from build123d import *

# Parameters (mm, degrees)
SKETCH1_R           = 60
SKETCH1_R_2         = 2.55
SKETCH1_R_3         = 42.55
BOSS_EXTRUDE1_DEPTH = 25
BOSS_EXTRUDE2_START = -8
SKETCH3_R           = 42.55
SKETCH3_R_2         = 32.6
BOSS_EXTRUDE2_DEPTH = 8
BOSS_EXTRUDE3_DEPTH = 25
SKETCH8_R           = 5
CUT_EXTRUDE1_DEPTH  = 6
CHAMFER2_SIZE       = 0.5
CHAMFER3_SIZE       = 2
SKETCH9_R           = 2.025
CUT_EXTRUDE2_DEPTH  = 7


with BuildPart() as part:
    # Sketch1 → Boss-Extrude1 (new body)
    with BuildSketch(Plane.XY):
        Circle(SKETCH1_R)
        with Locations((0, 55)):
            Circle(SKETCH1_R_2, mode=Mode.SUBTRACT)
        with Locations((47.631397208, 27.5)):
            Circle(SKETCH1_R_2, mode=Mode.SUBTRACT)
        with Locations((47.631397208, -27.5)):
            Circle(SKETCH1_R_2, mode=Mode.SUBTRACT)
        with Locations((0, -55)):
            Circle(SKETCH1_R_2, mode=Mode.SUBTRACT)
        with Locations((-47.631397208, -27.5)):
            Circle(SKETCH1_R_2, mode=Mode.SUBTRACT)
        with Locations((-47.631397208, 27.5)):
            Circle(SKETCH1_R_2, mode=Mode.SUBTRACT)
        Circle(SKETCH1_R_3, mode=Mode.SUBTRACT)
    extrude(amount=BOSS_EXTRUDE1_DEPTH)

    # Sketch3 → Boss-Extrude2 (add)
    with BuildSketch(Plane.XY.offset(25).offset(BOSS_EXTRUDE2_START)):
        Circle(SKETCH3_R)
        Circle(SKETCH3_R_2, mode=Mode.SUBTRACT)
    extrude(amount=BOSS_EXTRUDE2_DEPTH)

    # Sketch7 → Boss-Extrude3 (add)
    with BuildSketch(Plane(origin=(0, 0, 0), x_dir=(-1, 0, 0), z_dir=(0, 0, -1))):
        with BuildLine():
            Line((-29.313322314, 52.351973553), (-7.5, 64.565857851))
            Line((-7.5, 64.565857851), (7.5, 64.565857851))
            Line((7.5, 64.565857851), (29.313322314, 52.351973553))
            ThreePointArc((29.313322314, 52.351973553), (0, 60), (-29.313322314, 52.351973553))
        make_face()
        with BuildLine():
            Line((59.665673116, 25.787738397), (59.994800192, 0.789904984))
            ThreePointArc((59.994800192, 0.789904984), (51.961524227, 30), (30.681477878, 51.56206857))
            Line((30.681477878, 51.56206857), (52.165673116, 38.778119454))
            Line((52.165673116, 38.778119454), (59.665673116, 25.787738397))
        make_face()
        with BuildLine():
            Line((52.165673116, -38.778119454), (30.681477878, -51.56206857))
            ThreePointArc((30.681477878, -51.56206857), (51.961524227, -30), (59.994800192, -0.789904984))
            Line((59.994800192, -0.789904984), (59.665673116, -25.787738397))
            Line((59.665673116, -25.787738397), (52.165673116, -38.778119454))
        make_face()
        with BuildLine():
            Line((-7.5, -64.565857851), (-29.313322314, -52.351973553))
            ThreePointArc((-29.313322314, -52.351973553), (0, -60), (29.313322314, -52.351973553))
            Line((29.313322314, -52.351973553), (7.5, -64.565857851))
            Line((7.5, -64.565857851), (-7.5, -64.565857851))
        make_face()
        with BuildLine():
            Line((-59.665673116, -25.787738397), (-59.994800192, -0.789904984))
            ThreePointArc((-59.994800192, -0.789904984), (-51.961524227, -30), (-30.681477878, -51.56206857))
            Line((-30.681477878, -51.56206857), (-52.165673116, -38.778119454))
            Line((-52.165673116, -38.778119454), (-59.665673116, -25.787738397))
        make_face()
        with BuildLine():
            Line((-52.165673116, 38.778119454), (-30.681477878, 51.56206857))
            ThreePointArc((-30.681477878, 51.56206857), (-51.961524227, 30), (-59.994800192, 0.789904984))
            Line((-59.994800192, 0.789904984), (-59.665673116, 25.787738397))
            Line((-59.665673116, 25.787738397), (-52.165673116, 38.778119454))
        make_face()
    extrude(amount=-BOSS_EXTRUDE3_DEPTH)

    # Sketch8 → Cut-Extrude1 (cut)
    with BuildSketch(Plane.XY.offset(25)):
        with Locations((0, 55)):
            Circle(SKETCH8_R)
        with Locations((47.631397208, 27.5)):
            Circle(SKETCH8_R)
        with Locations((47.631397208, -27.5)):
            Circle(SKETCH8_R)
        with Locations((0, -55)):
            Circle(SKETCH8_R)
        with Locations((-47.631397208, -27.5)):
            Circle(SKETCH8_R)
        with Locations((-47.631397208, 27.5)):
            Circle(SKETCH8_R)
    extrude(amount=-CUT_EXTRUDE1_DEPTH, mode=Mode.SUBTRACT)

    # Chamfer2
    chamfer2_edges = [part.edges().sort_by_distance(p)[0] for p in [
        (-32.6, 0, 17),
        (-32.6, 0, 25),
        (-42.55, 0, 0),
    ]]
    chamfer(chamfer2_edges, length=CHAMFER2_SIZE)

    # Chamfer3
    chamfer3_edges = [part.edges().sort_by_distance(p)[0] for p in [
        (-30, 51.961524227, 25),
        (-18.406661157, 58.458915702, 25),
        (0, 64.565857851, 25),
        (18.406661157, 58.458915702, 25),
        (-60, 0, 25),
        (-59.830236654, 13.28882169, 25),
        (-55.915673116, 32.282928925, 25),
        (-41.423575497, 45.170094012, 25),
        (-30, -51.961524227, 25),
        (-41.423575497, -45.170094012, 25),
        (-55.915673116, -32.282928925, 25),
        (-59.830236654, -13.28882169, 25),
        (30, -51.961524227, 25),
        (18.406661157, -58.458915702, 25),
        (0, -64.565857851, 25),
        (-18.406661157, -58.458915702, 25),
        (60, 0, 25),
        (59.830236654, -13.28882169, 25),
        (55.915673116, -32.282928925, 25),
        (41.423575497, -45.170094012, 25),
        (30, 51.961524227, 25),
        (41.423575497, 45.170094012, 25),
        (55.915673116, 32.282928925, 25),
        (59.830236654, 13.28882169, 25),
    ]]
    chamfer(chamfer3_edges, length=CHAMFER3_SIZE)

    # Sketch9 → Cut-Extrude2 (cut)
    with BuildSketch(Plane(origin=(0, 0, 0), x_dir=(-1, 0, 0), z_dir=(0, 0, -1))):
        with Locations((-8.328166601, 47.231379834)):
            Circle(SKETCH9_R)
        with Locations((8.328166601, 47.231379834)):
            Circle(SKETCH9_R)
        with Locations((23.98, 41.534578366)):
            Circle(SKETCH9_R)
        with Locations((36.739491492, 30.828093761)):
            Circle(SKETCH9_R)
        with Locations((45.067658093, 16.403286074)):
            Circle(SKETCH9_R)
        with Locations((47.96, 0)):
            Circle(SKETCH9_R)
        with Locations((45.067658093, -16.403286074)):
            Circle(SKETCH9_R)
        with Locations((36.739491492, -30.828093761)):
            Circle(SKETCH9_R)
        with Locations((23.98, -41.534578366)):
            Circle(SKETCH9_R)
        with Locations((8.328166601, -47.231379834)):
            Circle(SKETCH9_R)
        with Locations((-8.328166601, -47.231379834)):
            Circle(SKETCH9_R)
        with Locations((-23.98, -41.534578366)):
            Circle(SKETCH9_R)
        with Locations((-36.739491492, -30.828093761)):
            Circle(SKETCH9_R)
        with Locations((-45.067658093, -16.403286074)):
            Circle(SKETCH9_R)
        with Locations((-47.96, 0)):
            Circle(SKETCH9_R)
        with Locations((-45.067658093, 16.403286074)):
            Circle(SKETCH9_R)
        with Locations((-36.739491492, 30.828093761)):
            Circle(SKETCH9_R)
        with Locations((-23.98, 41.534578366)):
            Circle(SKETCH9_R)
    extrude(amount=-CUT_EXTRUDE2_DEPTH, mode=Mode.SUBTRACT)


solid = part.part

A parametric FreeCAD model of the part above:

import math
import FreeCAD as App
import Part
import Sketcher
from FreeCAD import Vector
Q = App.Units.Quantity


def edges_at(feature, points):
    """Names of the edges that pass closest to the given points."""
    edges = feature.Shape.Edges
    near = lambda p: min(range(len(edges)), key=lambda i: edges[i].distToShape(Part.Vertex(*p))[0])
    return sorted({f"Edge{near(p) + 1}" for p in points})

doc = App.newDocument("Part")
params = doc.addObject("Spreadsheet::Sheet", "Params")
for row, (alias, value) in enumerate([
    ("sketch1_diameter", "120 mm"),
    ("sketch1_diameter2", "5.1 mm"),
    ("sketch1_diameter3", "85.1 mm"),
    ("pad1_length", "25 mm"),
    ("sketch2_diameter", "85.1 mm"),
    ("sketch2_diameter2", "65.2 mm"),
    ("pad2_length", "8 mm"),
    ("sketch3_radius", "60 mm"),
    ("sketch3_width", "15 mm"),
    ("sketch3_length", "25 mm"),
    ("sketch3_length2", "15 mm"),
    ("pad3_length", "25 mm"),
    ("sketch4_diameter", "10 mm"),
    ("pocket1_length", "6 mm"),
    ("chamfer_size", "0.5 mm"),
    ("chamfer2_size", "2 mm"),
    ("sketch5_diameter", "4.05 mm"),
    ("pocket2_length", "7 mm"),
], start=1):
    params.set(f"A{row}", alias)
    params.set(f"B{row}", "=" + value)
    params.setAlias(f"B{row}", alias)

body = doc.addObject("PartDesign::Body", "Body")

sketch1 = body.newObject("Sketcher::SketchObject", "Sketch")
sketch1.AttachmentSupport = (doc.getObject("XY_Plane"), [""])
sketch1.MapMode = "FlatFace"
sketch1.addGeometry([
    Part.Circle(Vector(0, 0, 0), Vector(0, 0, 1), 60),
    Part.Circle(Vector(0, -55, 0), Vector(0, 0, 1), 2.5),
    Part.Circle(Vector(-47.6, -27.5, 0), Vector(0, 0, 1), 2.5),
    Part.Circle(Vector(47.6, -27.5, 0), Vector(0, 0, 1), 2.5),
    Part.Circle(Vector(-47.6, 27.5, 0), Vector(0, 0, 1), 2.5),
    Part.Circle(Vector(0, 0, 0), Vector(0, 0, 1), 42.5),
    Part.Circle(Vector(0, 55, 0), Vector(0, 0, 1), 2.5),
    Part.Circle(Vector(47.6, 27.5, 0), Vector(0, 0, 1), 2.5),
], False)
sketch1.addConstraint([
    Sketcher.Constraint("Coincident", 0, 3, -1, 1),
    Sketcher.Constraint("Coincident", 5, 3, -1, 1),
    Sketcher.Constraint("Equal", 1, 2),
    Sketcher.Constraint("Equal", 2, 3),
    Sketcher.Constraint("Equal", 3, 4),
    Sketcher.Constraint("Equal", 4, 6),
    Sketcher.Constraint("Equal", 6, 7),
    Sketcher.Constraint("Symmetric", 3, 3, 4, 3, -1, 1),
    Sketcher.Constraint("Symmetric", 1, 3, 6, 3, -1, 1),
    Sketcher.Constraint("Symmetric", 2, 3, 7, 3, -1, 1),
    Sketcher.Constraint("Symmetric", 2, 3, 3, 3, -2),
    Sketcher.Constraint("PointOnObject", 1, 3, -2),
    Sketcher.Constraint("Diameter", 0, Q("120 mm")),
    Sketcher.Constraint("Diameter", 1, Q("5.1 mm")),
    Sketcher.Constraint("Diameter", 5, Q("85.1 mm")),
    Sketcher.Constraint("DistanceY", 1, 3, -1, 1, Q("55 mm")),
    Sketcher.Constraint("DistanceY", 2, 3, 4, 3, Q("55 mm")),
    Sketcher.Constraint("DistanceX", 2, 3, -1, 1, Q("47.631397 mm")),
])
sketch1.setExpression("Constraints[12]", "Params.sketch1_diameter")
sketch1.setExpression("Constraints[13]", "Params.sketch1_diameter2")
sketch1.setExpression("Constraints[14]", "Params.sketch1_diameter3")
pad1 = body.newObject("PartDesign::Pad", "Pad")
pad1.Profile = sketch1
pad1.setExpression("Length", "Params.pad1_length")

sketch2 = body.newObject("Sketcher::SketchObject", "Sketch001")
sketch2.AttachmentSupport = (doc.getObject("XY_Plane"), [""])
sketch2.MapMode = "FlatFace"
sketch2.AttachmentOffset = App.Placement(Vector(0, 0, 17), App.Rotation())
sketch2.addGeometry([
    Part.Circle(Vector(0, 0, 0), Vector(0, 0, 1), 43),
    Part.Circle(Vector(0, 0, 0), Vector(0, 0, 1), 33),
], False)
sketch2.addConstraint([
    Sketcher.Constraint("Coincident", 0, 3, -1, 1),
    Sketcher.Constraint("Coincident", 1, 3, -1, 1),
    Sketcher.Constraint("Diameter", 0, Q("85.1 mm")),
    Sketcher.Constraint("Diameter", 1, Q("65.2 mm")),
])
sketch2.setExpression("Constraints[2]", "Params.sketch2_diameter")
sketch2.setExpression("Constraints[3]", "Params.sketch2_diameter2")
pad2 = body.newObject("PartDesign::Pad", "Pad001")
pad2.Profile = sketch2
pad2.setExpression("Length", "Params.pad2_length")

sketch3 = body.newObject("Sketcher::SketchObject", "Sketch002")
sketch3.AttachmentSupport = (doc.getObject("XY_Plane"), [""])
sketch3.MapMode = "FlatFace"
sketch3.addGeometry([
    Part.LineSegment(Vector(8, 65, 0), Vector(29, 52, 0)),
    Part.ArcOfCircle(Part.Circle(Vector(0, 0, 0), Vector(0, 0, 1), 60), math.radians(61), math.radians(119)),
    Part.LineSegment(Vector(-29, 52, 0), Vector(-8, 65, 0)),
    Part.LineSegment(Vector(-8, 65, 0), Vector(8, 65, 0)),
    Part.LineSegment(Vector(-60, 1, 0), Vector(-60, 26, 0)),
    Part.LineSegment(Vector(-60, 26, 0), Vector(-52, 39, 0)),
    Part.LineSegment(Vector(-52, 39, 0), Vector(-31, 52, 0)),
    Part.ArcOfCircle(Part.Circle(Vector(0, 0, 0), Vector(0, 0, 1), 60), math.radians(121), math.radians(179)),
    Part.LineSegment(Vector(-31, -52, 0), Vector(-52, -39, 0)),
    Part.LineSegment(Vector(-52, -39, 0), Vector(-60, -26, 0)),
    Part.LineSegment(Vector(-60, -26, 0), Vector(-60, -1, 0)),
    Part.ArcOfCircle(Part.Circle(Vector(0, 0, 0), Vector(0, 0, 1), 60), math.radians(-179), math.radians(-121)),
    Part.LineSegment(Vector(29, -52, 0), Vector(8, -65, 0)),
    Part.LineSegment(Vector(8, -65, 0), Vector(-8, -65, 0)),
    Part.LineSegment(Vector(-8, -65, 0), Vector(-29, -52, 0)),
    Part.ArcOfCircle(Part.Circle(Vector(0, 0, 0), Vector(0, 0, 1), 60), math.radians(-119), math.radians(-61)),
    Part.LineSegment(Vector(60, -1, 0), Vector(60, -26, 0)),
    Part.LineSegment(Vector(60, -26, 0), Vector(52, -39, 0)),
    Part.LineSegment(Vector(52, -39, 0), Vector(31, -52, 0)),
    Part.ArcOfCircle(Part.Circle(Vector(0, 0, 0), Vector(0, 0, 1), 60), math.radians(-59), math.radians(-1)),
    Part.LineSegment(Vector(31, 52, 0), Vector(52, 39, 0)),
    Part.LineSegment(Vector(52, 39, 0), Vector(60, 26, 0)),
    Part.LineSegment(Vector(60, 26, 0), Vector(60, 1, 0)),
    Part.ArcOfCircle(Part.Circle(Vector(0, 0, 0), Vector(0, 0, 1), 60), math.radians(1), math.radians(59)),
], False)
sketch3.addConstraint([
    Sketcher.Constraint("Tangent", 0, 2, 1, 1),
    Sketcher.Constraint("Tangent", 1, 2, 2, 1),
    Sketcher.Constraint("Coincident", 2, 2, 3, 1),
    Sketcher.Constraint("Coincident", 3, 2, 0, 1),
    Sketcher.Constraint("Coincident", 4, 2, 5, 1),
    Sketcher.Constraint("Coincident", 5, 2, 6, 1),
    Sketcher.Constraint("Tangent", 6, 2, 7, 1),
    Sketcher.Constraint("Tangent", 7, 2, 4, 1),
    Sketcher.Constraint("Coincident", 8, 2, 9, 1),
    Sketcher.Constraint("Coincident", 9, 2, 10, 1),
    Sketcher.Constraint("Tangent", 10, 2, 11, 1),
    Sketcher.Constraint("Tangent", 11, 2, 8, 1),
    Sketcher.Constraint("Coincident", 12, 2, 13, 1),
    Sketcher.Constraint("Coincident", 13, 2, 14, 1),
    Sketcher.Constraint("Tangent", 14, 2, 15, 1),
    Sketcher.Constraint("Tangent", 15, 2, 12, 1),
    Sketcher.Constraint("Coincident", 16, 2, 17, 1),
    Sketcher.Constraint("Coincident", 17, 2, 18, 1),
    Sketcher.Constraint("Tangent", 18, 2, 19, 1),
    Sketcher.Constraint("Tangent", 19, 2, 16, 1),
    Sketcher.Constraint("Coincident", 20, 2, 21, 1),
    Sketcher.Constraint("Coincident", 21, 2, 22, 1),
    Sketcher.Constraint("Tangent", 22, 2, 23, 1),
    Sketcher.Constraint("Tangent", 23, 2, 20, 1),
    Sketcher.Constraint("Horizontal", 3),
    Sketcher.Constraint("Horizontal", 13),
    Sketcher.Constraint("Coincident", 1, 3, -1, 1),
    Sketcher.Constraint("Coincident", 7, 3, -1, 1),
    Sketcher.Constraint("Coincident", 11, 3, -1, 1),
    Sketcher.Constraint("Coincident", 15, 3, -1, 1),
    Sketcher.Constraint("Coincident", 19, 3, -1, 1),
    Sketcher.Constraint("Coincident", 23, 3, -1, 1),
    Sketcher.Constraint("Equal", 1, 7),
    Sketcher.Constraint("Equal", 7, 11),
    Sketcher.Constraint("Equal", 11, 15),
    Sketcher.Constraint("Equal", 15, 19),
    Sketcher.Constraint("Equal", 19, 23),
    Sketcher.Constraint("Symmetric", 2, 2, 12, 2, -1, 1),
    Sketcher.Constraint("Symmetric", 4, 2, 16, 2, -1, 1),
    Sketcher.Constraint("Symmetric", 5, 2, 17, 2, -1, 1),
    Sketcher.Constraint("Symmetric", 8, 2, 20, 2, -1, 1),
    Sketcher.Constraint("Symmetric", 9, 2, 21, 2, -1, 1),
    Sketcher.Constraint("Symmetric", 9, 2, 16, 2, -2),
    Sketcher.Constraint("Symmetric", 8, 2, 17, 2, -2),
    Sketcher.Constraint("Parallel", 0, 14),
    Sketcher.Constraint("Horizontal", 0, 2, 1, 2),
    Sketcher.Constraint("Equal", 2, 4),
    Sketcher.Constraint("Equal", 4, 6),
    Sketcher.Constraint("Radius", 1, Q("60 mm")),
    Sketcher.Constraint("DistanceX", 3, 1, 3, 2, Q("15 mm")),
    Sketcher.Constraint("Angle", 5, Q("60 deg")),
    Sketcher.Constraint("Distance", 0, Q("25 mm")),
    Sketcher.Constraint("Distance", 5, Q("15 mm")),
])
sketch3.setExpression("Constraints[48]", "Params.sketch3_radius")
sketch3.setExpression("Constraints[49]", "Params.sketch3_width")
sketch3.setExpression("Constraints[51]", "Params.sketch3_length")
sketch3.setExpression("Constraints[52]", "Params.sketch3_length2")
pad3 = body.newObject("PartDesign::Pad", "Pad002")
pad3.Profile = sketch3
pad3.setExpression("Length", "Params.pad3_length")

sketch4 = body.newObject("Sketcher::SketchObject", "Sketch003")
sketch4.AttachmentSupport = (doc.getObject("XY_Plane"), [""])
sketch4.MapMode = "FlatFace"
sketch4.AttachmentOffset = App.Placement(Vector(0, 0, 25), App.Rotation())
sketch4.addGeometry([
    Part.Circle(Vector(0, 55, 0), Vector(0, 0, 1), 5),
    Part.Circle(Vector(48, 28, 0), Vector(0, 0, 1), 5),
    Part.Circle(Vector(48, -28, 0), Vector(0, 0, 1), 5),
    Part.Circle(Vector(0, -55, 0), Vector(0, 0, 1), 5),
    Part.Circle(Vector(-48, -28, 0), Vector(0, 0, 1), 5),
    Part.Circle(Vector(-48, 28, 0), Vector(0, 0, 1), 5),
], False)
sketch4.addConstraint([
    Sketcher.Constraint("Equal", 0, 1),
    Sketcher.Constraint("Equal", 1, 2),
    Sketcher.Constraint("Equal", 2, 3),
    Sketcher.Constraint("Equal", 3, 4),
    Sketcher.Constraint("Equal", 4, 5),
    Sketcher.Constraint("Symmetric", 0, 3, 3, 3, -1, 1),
    Sketcher.Constraint("Symmetric", 1, 3, 4, 3, -1, 1),
    Sketcher.Constraint("Symmetric", 2, 3, 5, 3, -1, 1),
    Sketcher.Constraint("Symmetric", 2, 3, 4, 3, -2),
    Sketcher.Constraint("PointOnObject", 0, 3, -2),
    Sketcher.Constraint("Diameter", 0, Q("10 mm")),
    Sketcher.Constraint("DistanceY", -1, 1, 0, 3, Q("55 mm")),
    Sketcher.Constraint("DistanceY", 2, 3, 1, 3, Q("55 mm")),
    Sketcher.Constraint("DistanceX", -1, 1, 1, 3, Q("47.631397 mm")),
])
sketch4.setExpression("Constraints[10]", "Params.sketch4_diameter")
pocket1 = body.newObject("PartDesign::Pocket", "Pocket")
pocket1.Profile = sketch4
pocket1.setExpression("Length", "Params.pocket1_length")
doc.recompute()

chamfer = body.newObject("PartDesign::Chamfer", "Chamfer")
chamfer.Base = (pocket1, edges_at(pocket1, [(-32.6, 0, 17), (-32.6, 0, 25), (-42.55, 0, 0)]))
chamfer.setExpression("Size", "Params.chamfer_size")
doc.recompute()

chamfer2 = body.newObject("PartDesign::Chamfer", "Chamfer001")
chamfer2.Base = (chamfer, edges_at(chamfer, [
    (-30, 51.962, 25),
    (-18.407, 58.459, 25),
    (0, 64.566, 25),
    (18.407, 58.459, 25),
    (-60, 0, 25),
    (-59.83, 13.289, 25),
    (-55.916, 32.283, 25),
    (-41.424, 45.17, 25),
    (-30, -51.962, 25),
    (-41.424, -45.17, 25),
    (-55.916, -32.283, 25),
    (-59.83, -13.289, 25),
    (30, -51.962, 25),
    (18.407, -58.459, 25),
    (0, -64.566, 25),
    (-18.407, -58.459, 25),
    (60, 0, 25),
    (59.83, -13.289, 25),
    (55.916, -32.283, 25),
    (41.424, -45.17, 25),
    (30, 51.962, 25),
    (41.424, 45.17, 25),
    (55.916, 32.283, 25),
    (59.83, 13.289, 25),
]))
chamfer2.setExpression("Size", "Params.chamfer2_size")

sketch5 = body.newObject("Sketcher::SketchObject", "Sketch004")
sketch5.AttachmentSupport = (doc.getObject("XY_Plane"), [""])
sketch5.MapMode = "FlatFace"
sketch5.addGeometry([
    Part.Circle(Vector(8.3, 47.2, 0), Vector(0, 0, 1), 2),
    Part.Circle(Vector(-8.3, 47.2, 0), Vector(0, 0, 1), 2),
    Part.Circle(Vector(-24, 41.5, 0), Vector(0, 0, 1), 2),
    Part.Circle(Vector(-36.7, 30.8, 0), Vector(0, 0, 1), 2),
    Part.Circle(Vector(-45.1, 16.4, 0), Vector(0, 0, 1), 2),
    Part.Circle(Vector(-48, 0, 0), Vector(0, 0, 1), 2),
    Part.Circle(Vector(-45.1, -16.4, 0), Vector(0, 0, 1), 2),
    Part.Circle(Vector(-36.7, -30.8, 0), Vector(0, 0, 1), 2),
    Part.Circle(Vector(-24, -41.5, 0), Vector(0, 0, 1), 2),
    Part.Circle(Vector(-8.3, -47.2, 0), Vector(0, 0, 1), 2),
    Part.Circle(Vector(8.3, -47.2, 0), Vector(0, 0, 1), 2),
    Part.Circle(Vector(24, -41.5, 0), Vector(0, 0, 1), 2),
    Part.Circle(Vector(36.7, -30.8, 0), Vector(0, 0, 1), 2),
    Part.Circle(Vector(45.1, -16.4, 0), Vector(0, 0, 1), 2),
    Part.Circle(Vector(48, 0, 0), Vector(0, 0, 1), 2),
    Part.Circle(Vector(45.1, 16.4, 0), Vector(0, 0, 1), 2),
    Part.Circle(Vector(36.7, 30.8, 0), Vector(0, 0, 1), 2),
    Part.Circle(Vector(24, 41.5, 0), Vector(0, 0, 1), 2),
], False)
sketch5.addConstraint([
    Sketcher.Constraint("Equal", 0, 1),
    Sketcher.Constraint("Equal", 1, 2),
    Sketcher.Constraint("Equal", 2, 3),
    Sketcher.Constraint("Equal", 3, 4),
    Sketcher.Constraint("Equal", 4, 5),
    Sketcher.Constraint("Equal", 5, 6),
    Sketcher.Constraint("Equal", 6, 7),
    Sketcher.Constraint("Equal", 7, 8),
    Sketcher.Constraint("Equal", 8, 9),
    Sketcher.Constraint("Equal", 9, 10),
    Sketcher.Constraint("Equal", 10, 11),
    Sketcher.Constraint("Equal", 11, 12),
    Sketcher.Constraint("Equal", 12, 13),
    Sketcher.Constraint("Equal", 13, 14),
    Sketcher.Constraint("Equal", 14, 15),
    Sketcher.Constraint("Equal", 15, 16),
    Sketcher.Constraint("Equal", 16, 17),
    Sketcher.Constraint("Symmetric", 0, 3, 9, 3, -1, 1),
    Sketcher.Constraint("Symmetric", 1, 3, 10, 3, -1, 1),
    Sketcher.Constraint("Symmetric", 2, 3, 11, 3, -1, 1),
    Sketcher.Constraint("Symmetric", 3, 3, 12, 3, -1, 1),
    Sketcher.Constraint("Symmetric", 4, 3, 13, 3, -1, 1),
    Sketcher.Constraint("Symmetric", 5, 3, 14, 3, -1, 1),
    Sketcher.Constraint("Symmetric", 6, 3, 15, 3, -1, 1),
    Sketcher.Constraint("Symmetric", 7, 3, 16, 3, -1, 1),
    Sketcher.Constraint("Symmetric", 8, 3, 17, 3, -1, 1),
    Sketcher.Constraint("Symmetric", 0, 3, 1, 3, -2),
    Sketcher.Constraint("Symmetric", 8, 3, 11, 3, -2),
    Sketcher.Constraint("Symmetric", 7, 3, 12, 3, -2),
    Sketcher.Constraint("Symmetric", 6, 3, 13, 3, -2),
    Sketcher.Constraint("PointOnObject", 5, 3, -1),
    Sketcher.Constraint("Diameter", 0, Q("4.05 mm")),
    Sketcher.Constraint("DistanceX", 2, 3, -1, 1, Q("23.98 mm")),
    Sketcher.Constraint("DistanceX", 5, 3, -1, 1, Q("47.96 mm")),
    Sketcher.Constraint("DistanceY", 2, 3, 1, 3, Q("5.696801 mm")),
    Sketcher.Constraint("DistanceY", -1, 1, 0, 3, Q("47.23138 mm")),
    Sketcher.Constraint("DistanceX", 3, 3, -1, 1, Q("36.739491 mm")),
    Sketcher.Constraint("DistanceX", 4, 3, -1, 1, Q("45.067658 mm")),
    Sketcher.Constraint("DistanceX", 3, 3, 0, 3, Q("45.067658 mm")),
    Sketcher.Constraint("DistanceY", 6, 3, 3, 3, Q("47.23138 mm")),
    Sketcher.Constraint("DistanceY", -1, 1, 3, 3, Q("30.828094 mm")),
])
sketch5.setExpression("Constraints[31]", "Params.sketch5_diameter")
pocket2 = body.newObject("PartDesign::Pocket", "Pocket001")
pocket2.Profile = sketch5
pocket2.setExpression("Length", "Params.pocket2_length")
pocket2.Reversed = True

doc.recompute()
